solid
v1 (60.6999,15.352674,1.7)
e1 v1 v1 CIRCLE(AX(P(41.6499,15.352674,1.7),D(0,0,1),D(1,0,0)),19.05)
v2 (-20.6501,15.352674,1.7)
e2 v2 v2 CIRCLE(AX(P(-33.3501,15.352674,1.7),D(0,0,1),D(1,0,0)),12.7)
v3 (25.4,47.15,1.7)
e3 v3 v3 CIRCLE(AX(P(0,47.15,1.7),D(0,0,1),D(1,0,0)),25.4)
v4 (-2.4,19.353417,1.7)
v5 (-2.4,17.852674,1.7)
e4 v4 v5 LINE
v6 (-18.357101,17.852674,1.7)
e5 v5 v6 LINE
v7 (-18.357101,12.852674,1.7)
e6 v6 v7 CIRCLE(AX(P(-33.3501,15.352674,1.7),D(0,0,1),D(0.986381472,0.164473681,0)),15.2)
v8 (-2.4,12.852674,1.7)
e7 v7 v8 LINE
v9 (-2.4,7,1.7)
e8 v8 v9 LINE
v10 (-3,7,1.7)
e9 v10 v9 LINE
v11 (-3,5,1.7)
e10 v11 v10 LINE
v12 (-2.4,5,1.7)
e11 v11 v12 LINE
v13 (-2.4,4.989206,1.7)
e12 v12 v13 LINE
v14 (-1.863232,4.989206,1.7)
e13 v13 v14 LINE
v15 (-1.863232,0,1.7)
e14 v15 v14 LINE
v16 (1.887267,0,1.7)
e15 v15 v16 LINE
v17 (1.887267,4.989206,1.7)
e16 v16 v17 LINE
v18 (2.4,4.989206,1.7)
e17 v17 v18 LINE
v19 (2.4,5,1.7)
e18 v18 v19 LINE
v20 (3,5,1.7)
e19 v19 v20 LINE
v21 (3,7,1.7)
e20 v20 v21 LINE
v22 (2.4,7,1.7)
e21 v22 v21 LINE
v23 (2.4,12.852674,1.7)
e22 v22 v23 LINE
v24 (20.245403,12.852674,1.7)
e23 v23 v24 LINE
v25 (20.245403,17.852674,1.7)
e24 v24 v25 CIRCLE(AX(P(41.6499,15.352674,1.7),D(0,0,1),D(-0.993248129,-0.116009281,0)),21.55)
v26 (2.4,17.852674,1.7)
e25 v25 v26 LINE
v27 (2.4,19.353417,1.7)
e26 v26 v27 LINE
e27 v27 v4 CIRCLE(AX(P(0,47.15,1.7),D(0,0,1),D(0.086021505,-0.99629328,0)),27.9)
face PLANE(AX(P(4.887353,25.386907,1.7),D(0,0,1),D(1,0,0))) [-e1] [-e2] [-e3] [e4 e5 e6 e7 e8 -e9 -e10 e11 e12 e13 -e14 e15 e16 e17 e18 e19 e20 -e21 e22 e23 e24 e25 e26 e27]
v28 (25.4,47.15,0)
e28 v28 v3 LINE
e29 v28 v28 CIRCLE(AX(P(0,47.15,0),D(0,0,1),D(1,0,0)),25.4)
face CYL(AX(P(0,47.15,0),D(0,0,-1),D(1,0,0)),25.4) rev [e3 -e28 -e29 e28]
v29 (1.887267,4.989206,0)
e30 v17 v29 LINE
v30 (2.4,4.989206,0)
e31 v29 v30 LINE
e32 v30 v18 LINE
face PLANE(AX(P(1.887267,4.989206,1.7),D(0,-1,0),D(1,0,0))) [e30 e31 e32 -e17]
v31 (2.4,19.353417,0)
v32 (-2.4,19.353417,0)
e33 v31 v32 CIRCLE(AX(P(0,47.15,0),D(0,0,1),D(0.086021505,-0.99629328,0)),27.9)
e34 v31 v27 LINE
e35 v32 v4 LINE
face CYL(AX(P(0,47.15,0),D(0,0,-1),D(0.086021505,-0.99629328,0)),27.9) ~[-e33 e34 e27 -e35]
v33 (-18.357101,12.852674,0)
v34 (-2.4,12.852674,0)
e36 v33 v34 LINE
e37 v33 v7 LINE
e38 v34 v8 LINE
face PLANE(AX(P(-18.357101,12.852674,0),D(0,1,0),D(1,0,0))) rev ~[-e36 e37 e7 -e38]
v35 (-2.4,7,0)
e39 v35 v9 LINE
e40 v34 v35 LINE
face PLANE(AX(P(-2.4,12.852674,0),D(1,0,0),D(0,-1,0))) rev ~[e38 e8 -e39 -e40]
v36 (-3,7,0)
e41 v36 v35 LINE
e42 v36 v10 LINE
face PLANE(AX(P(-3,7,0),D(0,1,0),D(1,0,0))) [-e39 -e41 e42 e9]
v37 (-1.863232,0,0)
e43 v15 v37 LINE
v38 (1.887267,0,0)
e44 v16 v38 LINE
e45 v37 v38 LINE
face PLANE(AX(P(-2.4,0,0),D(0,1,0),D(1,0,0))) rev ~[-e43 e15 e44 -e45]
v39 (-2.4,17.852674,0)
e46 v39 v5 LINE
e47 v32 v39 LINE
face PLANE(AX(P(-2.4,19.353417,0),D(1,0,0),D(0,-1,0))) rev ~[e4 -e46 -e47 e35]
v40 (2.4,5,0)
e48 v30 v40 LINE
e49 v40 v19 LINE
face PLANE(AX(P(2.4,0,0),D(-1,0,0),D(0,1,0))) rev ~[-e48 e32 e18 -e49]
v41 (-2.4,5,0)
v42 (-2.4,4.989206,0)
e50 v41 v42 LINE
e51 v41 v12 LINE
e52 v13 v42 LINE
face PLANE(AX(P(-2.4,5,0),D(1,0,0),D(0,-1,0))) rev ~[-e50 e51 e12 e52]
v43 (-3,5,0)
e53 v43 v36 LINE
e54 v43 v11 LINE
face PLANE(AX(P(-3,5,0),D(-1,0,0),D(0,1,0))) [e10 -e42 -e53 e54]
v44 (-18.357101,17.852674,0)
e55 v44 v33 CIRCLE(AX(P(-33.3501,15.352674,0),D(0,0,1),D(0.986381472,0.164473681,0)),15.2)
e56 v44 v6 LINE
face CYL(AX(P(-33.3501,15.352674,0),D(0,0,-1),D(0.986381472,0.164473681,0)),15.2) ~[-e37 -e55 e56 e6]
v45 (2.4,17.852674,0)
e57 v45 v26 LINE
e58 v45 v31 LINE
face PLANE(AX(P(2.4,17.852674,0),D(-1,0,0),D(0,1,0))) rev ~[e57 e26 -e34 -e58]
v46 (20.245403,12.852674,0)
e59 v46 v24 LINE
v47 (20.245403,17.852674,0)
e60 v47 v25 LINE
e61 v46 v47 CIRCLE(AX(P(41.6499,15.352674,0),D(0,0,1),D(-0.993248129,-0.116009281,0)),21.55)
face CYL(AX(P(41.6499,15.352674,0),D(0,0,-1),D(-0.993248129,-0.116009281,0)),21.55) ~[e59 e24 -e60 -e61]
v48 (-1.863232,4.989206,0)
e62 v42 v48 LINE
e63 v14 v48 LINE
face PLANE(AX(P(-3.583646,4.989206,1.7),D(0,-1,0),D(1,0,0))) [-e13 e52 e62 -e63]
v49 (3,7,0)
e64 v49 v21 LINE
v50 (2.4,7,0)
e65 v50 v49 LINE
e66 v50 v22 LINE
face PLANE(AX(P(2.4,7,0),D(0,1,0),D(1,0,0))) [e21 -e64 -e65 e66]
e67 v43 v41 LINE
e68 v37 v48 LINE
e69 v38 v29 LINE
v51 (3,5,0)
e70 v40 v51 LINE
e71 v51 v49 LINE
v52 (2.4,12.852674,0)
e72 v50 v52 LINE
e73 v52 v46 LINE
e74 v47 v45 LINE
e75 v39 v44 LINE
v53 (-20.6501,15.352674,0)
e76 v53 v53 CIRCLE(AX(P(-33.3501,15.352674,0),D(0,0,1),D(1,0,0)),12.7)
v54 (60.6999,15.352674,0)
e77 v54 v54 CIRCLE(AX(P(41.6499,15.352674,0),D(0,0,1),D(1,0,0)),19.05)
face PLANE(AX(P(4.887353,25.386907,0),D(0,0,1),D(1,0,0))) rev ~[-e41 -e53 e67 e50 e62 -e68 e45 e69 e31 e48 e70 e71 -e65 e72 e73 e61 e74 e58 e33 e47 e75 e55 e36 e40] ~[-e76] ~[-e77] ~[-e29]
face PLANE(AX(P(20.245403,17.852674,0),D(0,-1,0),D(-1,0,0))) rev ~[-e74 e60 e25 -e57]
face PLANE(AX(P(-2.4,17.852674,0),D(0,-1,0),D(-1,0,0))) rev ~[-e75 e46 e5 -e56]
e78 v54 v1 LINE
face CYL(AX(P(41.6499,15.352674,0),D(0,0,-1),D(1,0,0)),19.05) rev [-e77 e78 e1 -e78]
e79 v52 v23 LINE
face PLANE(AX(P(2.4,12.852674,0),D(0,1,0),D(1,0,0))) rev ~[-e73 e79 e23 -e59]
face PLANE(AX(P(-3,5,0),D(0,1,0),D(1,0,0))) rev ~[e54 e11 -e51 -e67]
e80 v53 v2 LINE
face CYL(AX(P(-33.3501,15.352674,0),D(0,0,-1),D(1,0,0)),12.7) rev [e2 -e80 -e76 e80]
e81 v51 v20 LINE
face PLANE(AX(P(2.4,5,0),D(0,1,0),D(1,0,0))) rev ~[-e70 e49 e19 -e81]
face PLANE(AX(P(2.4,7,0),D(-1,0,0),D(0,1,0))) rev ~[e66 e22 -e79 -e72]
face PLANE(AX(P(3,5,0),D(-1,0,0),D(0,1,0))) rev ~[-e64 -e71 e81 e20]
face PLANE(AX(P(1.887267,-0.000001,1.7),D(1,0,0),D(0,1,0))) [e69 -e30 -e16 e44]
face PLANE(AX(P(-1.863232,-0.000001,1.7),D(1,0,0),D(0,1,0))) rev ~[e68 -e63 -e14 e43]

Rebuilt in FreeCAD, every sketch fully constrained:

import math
import FreeCAD as App
import Part
import Sketcher
Q = App.Units.Quantity

doc = App.newDocument("Part")
body = doc.addObject("PartDesign::Body", "Body")

# Sketch on XY plane
sketch1 = body.newObject("Sketcher::SketchObject", "Sketch")
sketch1.AttachmentSupport = (doc.getObject("XY_Plane"), [""])
sketch1.MapMode = "FlatFace"
sketch1.addGeometry(Part.ArcOfCircle(Part.Circle(App.Vector(0, 47.1, 0), App.Vector(0, 0, 1), 27.9), math.radians(-85), math.radians(265)), False)
sketch1.addGeometry(Part.LineSegment(App.Vector(-2.4, 19.4, 0), App.Vector(-2.4, 17.9, 0)), False)
sketch1.addGeometry(Part.LineSegment(App.Vector(-2.4, 17.9, 0), App.Vector(-18.4, 17.9, 0)), False)
sketch1.addGeometry(Part.ArcOfCircle(Part.Circle(App.Vector(-33.4, 15.4, 0), App.Vector(0, 0, 1), 15.2), math.radians(9), math.radians(351)), False)
sketch1.addGeometry(Part.LineSegment(App.Vector(-18.4, 12.9, 0), App.Vector(-2.4, 12.9, 0)), False)
sketch1.addGeometry(Part.LineSegment(App.Vector(-2.4, 12.9, 0), App.Vector(-2.4, 7, 0)), False)
sketch1.addGeometry(Part.LineSegment(App.Vector(-2.4, 7, 0), App.Vector(-3, 7, 0)), False)
sketch1.addGeometry(Part.LineSegment(App.Vector(-3, 7, 0), App.Vector(-3, 5, 0)), False)
sketch1.addGeometry(Part.LineSegment(App.Vector(-3, 5, 0), App.Vector(-2.4, 5, 0)), False)
sketch1.addGeometry(Part.LineSegment(App.Vector(-2.4, 5, 0), App.Vector(-2.4, 0, 0)), False)
sketch1.addGeometry(Part.LineSegment(App.Vector(-2.4, 0, 0), App.Vector(2.4, 0, 0)), False)
sketch1.addGeometry(Part.LineSegment(App.Vector(2.4, 0, 0), App.Vector(2.4, 5, 0)), False)
sketch1.addGeometry(Part.LineSegment(App.Vector(2.4, 5, 0), App.Vector(3, 5, 0)), False)
sketch1.addGeometry(Part.LineSegment(App.Vector(3, 5, 0), App.Vector(3, 7, 0)), False)
sketch1.addGeometry(Part.LineSegment(App.Vector(3, 7, 0), App.Vector(2.4, 7, 0)), False)
sketch1.addGeometry(Part.LineSegment(App.Vector(2.4, 7, 0), App.Vector(2.4, 12.9, 0)), False)
sketch1.addGeometry(Part.LineSegment(App.Vector(2.4, 12.9, 0), App.Vector(20.2, 12.9, 0)), False)
sketch1.addGeometry(Part.ArcOfCircle(Part.Circle(App.Vector(41.6, 15.4, 0), App.Vector(0, 0, 1), 21.5), math.radians(-173), math.radians(173)), False)
sketch1.addGeometry(Part.LineSegment(App.Vector(20.2, 17.9, 0), App.Vector(2.4, 17.9, 0)), False)
sketch1.addGeometry(Part.LineSegment(App.Vector(2.4, 17.9, 0), App.Vector(2.4, 19.4, 0)), False)
sketch1.addGeometry(Part.Circle(App.Vector(-33.4, 15.4, 0), App.Vector(0, 0, 1), 12.7), False)
sketch1.addGeometry(Part.Circle(App.Vector(41.6, 15.4, 0), App.Vector(0, 0, 1), 19.1), False)
sketch1.addGeometry(Part.Circle(App.Vector(0, 47.1, 0), App.Vector(0, 0, 1), 25.4), False)
sketch1.addConstraint(Sketcher.Constraint("Coincident", 0, 2, 1, 1))
sketch1.addConstraint(Sketcher.Constraint("Coincident", 1, 2, 2, 1))
sketch1.addConstraint(Sketcher.Constraint("Coincident", 2, 2, 3, 1))
sketch1.addConstraint(Sketcher.Constraint("Coincident", 3, 2, 4, 1))
sketch1.addConstraint(Sketcher.Constraint("Coincident", 4, 2, 5, 1))
sketch1.addConstraint(Sketcher.Constraint("Coincident", 5, 2, 6, 1))
sketch1.addConstraint(Sketcher.Constraint("Coincident", 6, 2, 7, 1))
sketch1.addConstraint(Sketcher.Constraint("Coincident", 7, 2, 8, 1))
sketch1.addConstraint(Sketcher.Constraint("Coincident", 8, 2, 9, 1))
sketch1.addConstraint(Sketcher.Constraint("Coincident", 9, 2, 10, 1))
sketch1.addConstraint(Sketcher.Constraint("Coincident", 10, 2, 11, 1))
sketch1.addConstraint(Sketcher.Constraint("Coincident", 11, 2, 12, 1))
sketch1.addConstraint(Sketcher.Constraint("Coincident", 12, 2, 13, 1))
sketch1.addConstraint(Sketcher.Constraint("Coincident", 13, 2, 14, 1))
sketch1.addConstraint(Sketcher.Constraint("Coincident", 14, 2, 15, 1))
sketch1.addConstraint(Sketcher.Constraint("Coincident", 15, 2, 16, 1))
sketch1.addConstraint(Sketcher.Constraint("Coincident", 16, 2, 17, 1))
sketch1.addConstraint(Sketcher.Constraint("Coincident", 17, 2, 18, 1))
sketch1.addConstraint(Sketcher.Constraint("Coincident", 18, 2, 19, 1))
sketch1.addConstraint(Sketcher.Constraint("Coincident", 19, 2, 0, 1))
sketch1.addConstraint(Sketcher.Constraint("Vertical", 1))
sketch1.addConstraint(Sketcher.Constraint("Horizontal", 2))
sketch1.addConstraint(Sketcher.Constraint("Horizontal", 4))
sketch1.addConstraint(Sketcher.Constraint("Vertical", 5))
sketch1.addConstraint(Sketcher.Constraint("Horizontal", 6))
sketch1.addConstraint(Sketcher.Constraint("Vertical", 7))
sketch1.addConstraint(Sketcher.Constraint("Horizontal", 8))
sketch1.addConstraint(Sketcher.Constraint("Vertical", 9))
sketch1.addConstraint(Sketcher.Constraint("Horizontal", 10))
sketch1.addConstraint(Sketcher.Constraint("Vertical", 11))
sketch1.addConstraint(Sketcher.Constraint("Horizontal", 12))
sketch1.addConstraint(Sketcher.Constraint("Vertical", 13))
sketch1.addConstraint(Sketcher.Constraint("Horizontal", 14))
sketch1.addConstraint(Sketcher.Constraint("Vertical", 15))
sketch1.addConstraint(Sketcher.Constraint("Horizontal", 16))
sketch1.addConstraint(Sketcher.Constraint("Horizontal", 18))
sketch1.addConstraint(Sketcher.Constraint("Vertical", 19))
sketch1.addConstraint(Sketcher.Constraint("Coincident", 20, 3, 3, 3))
sketch1.addConstraint(Sketcher.Constraint("Coincident", 21, 3, 17, 3))
sketch1.addConstraint(Sketcher.Constraint("Coincident", 22, 3, 0, 3))
sketch1.addConstraint(Sketcher.Constraint("Symmetric", 9, 2, 10, 2, -1, 1))
sketch1.addConstraint(Sketcher.Constraint("Symmetric", 7, 2, 12, 2, -2))
sketch1.addConstraint(Sketcher.Constraint("Symmetric", 5, 2, 14, 2, -2))
sketch1.addConstraint(Sketcher.Constraint("Symmetric", 1, 2, 18, 2, -2))
sketch1.addConstraint(Sketcher.Constraint("PointOnObject", 0, 3, -2))
sketch1.addConstraint(Sketcher.Constraint("Horizontal", 3, 3, 17, 3))
sketch1.addConstraint(Sketcher.Constraint("Horizontal", 4, 2, 15, 2))
sketch1.addConstraint(Sketcher.Constraint("Vertical", 2, 2, 3, 2))
sketch1.addConstraint(Sketcher.Constraint("Vertical", 1, 2, 4, 2))
sketch1.addConstraint(Sketcher.Constraint("Vertical", 5, 2, 8, 2))
sketch1.addConstraint(Sketcher.Constraint("Diameter", 20, Q("25.4 mm")))
sketch1.addConstraint(Sketcher.Constraint("Diameter", 21, Q("38.1 mm")))
sketch1.addConstraint(Sketcher.Constraint("Diameter", 22, Q("50.8 mm")))
sketch1.addConstraint(Sketcher.Constraint("Radius", 0, Q("27.9 mm")))
sketch1.addConstraint(Sketcher.Constraint("Radius", 3, Q("15.2 mm")))
sketch1.addConstraint(Sketcher.Constraint("DistanceY", 7, 2, 7, 1, Q("2 mm")))
sketch1.addConstraint(Sketcher.Constraint("DistanceY", 9, 2, 9, 1, Q("5 mm")))
sketch1.addConstraint(Sketcher.Constraint("Radius", 17, Q("21.55 mm")))
sketch1.addConstraint(Sketcher.Constraint("DistanceX", 6, 2, 6, 1, Q("0.6 mm")))
sketch1.addConstraint(Sketcher.Constraint("DistanceX", 10, 1, 10, 2, Q("4.8 mm")))
sketch1.addConstraint(Sketcher.Constraint("DistanceX", 3, 3, 17, 3, Q("75 mm")))
sketch1.addConstraint(Sketcher.Constraint("DistanceY", 3, 2, 2, 2, Q("5 mm")))
sketch1.addConstraint(Sketcher.Constraint("DistanceY", -1, 1, 0, 3, Q("47.15 mm")))
sketch1.addConstraint(Sketcher.Constraint("DistanceX", 2, 2, 2, 1, Q("15.957101 mm")))
sketch1.addConstraint(Sketcher.Constraint("DistanceY", 1, 2, 1, 1, Q("1.500743 mm")))
pad1 = body.newObject("PartDesign::Pad", "Pad")
pad1.Profile = sketch1
pad1.Length = 1.7

# Sketch on XY plane
sketch2 = body.newObject("Sketcher::SketchObject", "Sketch001")
sketch2.AttachmentSupport = (doc.getObject("XY_Plane"), [""])
sketch2.MapMode = "FlatFace"
sketch2.AttachmentOffset = App.Placement(App.Vector(0, 0, 1.7), App.Rotation())
sketch2.addGeometry(Part.LineSegment(App.Vector(-3.6, 5, 0), App.Vector(-3.6, 0, 0)), False)
sketch2.addGeometry(Part.LineSegment(App.Vector(-3.6, 0, 0), App.Vector(-1.9, 0, 0)), False)
sketch2.addGeometry(Part.LineSegment(App.Vector(-1.9, 0, 0), App.Vector(-1.9, 5, 0)), False)
sketch2.addGeometry(Part.LineSegment(App.Vector(-1.9, 5, 0), App.Vector(-3.6, 5, 0)), False)
sketch2.addGeometry(Part.LineSegment(App.Vector(1.9, 5, 0), App.Vector(1.9, 0, 0)), False)
sketch2.addGeometry(Part.LineSegment(App.Vector(1.9, 0, 0), App.Vector(4.2, 0, 0)), False)
sketch2.addGeometry(Part.LineSegment(App.Vector(4.2, 0, 0), App.Vector(4.2, 5, 0)), False)
sketch2.addGeometry(Part.LineSegment(App.Vector(4.2, 5, 0), App.Vector(1.9, 5, 0)), False)
sketch2.addConstraint(Sketcher.Constraint("Coincident", 0, 2, 1, 1))
sketch2.addConstraint(Sketcher.Constraint("Coincident", 1, 2, 2, 1))
sketch2.addConstraint(Sketcher.Constraint("Coincident", 2, 2, 3, 1))
sketch2.addConstraint(Sketcher.Constraint("Coincident", 3, 2, 0, 1))
sketch2.addConstraint(Sketcher.Constraint("Coincident", 4, 2, 5, 1))
sketch2.addConstraint(Sketcher.Constraint("Coincident", 5, 2, 6, 1))
sketch2.addConstraint(Sketcher.Constraint("Coincident", 6, 2, 7, 1))
sketch2.addConstraint(Sketcher.Constraint("Coincident", 7, 2, 4, 1))
sketch2.addConstraint(Sketcher.Constraint("Vertical", 0))
sketch2.addConstraint(Sketcher.Constraint("Horizontal", 1))
sketch2.addConstraint(Sketcher.Constraint("Vertical", 2))
sketch2.addConstraint(Sketcher.Constraint("Horizontal", 3))
sketch2.addConstraint(Sketcher.Constraint("Vertical", 4))
sketch2.addConstraint(Sketcher.Constraint("Horizontal", 5))
sketch2.addConstraint(Sketcher.Constraint("Vertical", 6))
sketch2.addConstraint(Sketcher.Constraint("Horizontal", 7))
sketch2.addConstraint(Sketcher.Constraint("PointOnObject", 0, 2, -1))
sketch2.addConstraint(Sketcher.Constraint("PointOnObject", 4, 2, -1))
sketch2.addConstraint(Sketcher.Constraint("Horizontal", 3, 2, 6, 2))
sketch2.addConstraint(Sketcher.Constraint("DistanceX", 1, 2, 4, 2, Q("3.750499 mm")))
sketch2.addConstraint(Sketcher.Constraint("DistanceX", 1, 1, 1, 2, Q("1.720414 mm")))
sketch2.addConstraint(Sketcher.Constraint("DistanceX", 5, 1, 5, 2, Q("2.270946 mm")))
sketch2.addConstraint(Sketcher.Constraint("DistanceY", 0, 2, 0, 1, Q("4.989207 mm")))
sketch2.addConstraint(Sketcher.Constraint("DistanceX", 0, 2, -1, 1, Q("3.583646 mm")))
pocket1 = body.newObject("PartDesign::Pocket", "Pocket")
pocket1.Profile = sketch2
pocket1.Length = 5

doc.recompute()
